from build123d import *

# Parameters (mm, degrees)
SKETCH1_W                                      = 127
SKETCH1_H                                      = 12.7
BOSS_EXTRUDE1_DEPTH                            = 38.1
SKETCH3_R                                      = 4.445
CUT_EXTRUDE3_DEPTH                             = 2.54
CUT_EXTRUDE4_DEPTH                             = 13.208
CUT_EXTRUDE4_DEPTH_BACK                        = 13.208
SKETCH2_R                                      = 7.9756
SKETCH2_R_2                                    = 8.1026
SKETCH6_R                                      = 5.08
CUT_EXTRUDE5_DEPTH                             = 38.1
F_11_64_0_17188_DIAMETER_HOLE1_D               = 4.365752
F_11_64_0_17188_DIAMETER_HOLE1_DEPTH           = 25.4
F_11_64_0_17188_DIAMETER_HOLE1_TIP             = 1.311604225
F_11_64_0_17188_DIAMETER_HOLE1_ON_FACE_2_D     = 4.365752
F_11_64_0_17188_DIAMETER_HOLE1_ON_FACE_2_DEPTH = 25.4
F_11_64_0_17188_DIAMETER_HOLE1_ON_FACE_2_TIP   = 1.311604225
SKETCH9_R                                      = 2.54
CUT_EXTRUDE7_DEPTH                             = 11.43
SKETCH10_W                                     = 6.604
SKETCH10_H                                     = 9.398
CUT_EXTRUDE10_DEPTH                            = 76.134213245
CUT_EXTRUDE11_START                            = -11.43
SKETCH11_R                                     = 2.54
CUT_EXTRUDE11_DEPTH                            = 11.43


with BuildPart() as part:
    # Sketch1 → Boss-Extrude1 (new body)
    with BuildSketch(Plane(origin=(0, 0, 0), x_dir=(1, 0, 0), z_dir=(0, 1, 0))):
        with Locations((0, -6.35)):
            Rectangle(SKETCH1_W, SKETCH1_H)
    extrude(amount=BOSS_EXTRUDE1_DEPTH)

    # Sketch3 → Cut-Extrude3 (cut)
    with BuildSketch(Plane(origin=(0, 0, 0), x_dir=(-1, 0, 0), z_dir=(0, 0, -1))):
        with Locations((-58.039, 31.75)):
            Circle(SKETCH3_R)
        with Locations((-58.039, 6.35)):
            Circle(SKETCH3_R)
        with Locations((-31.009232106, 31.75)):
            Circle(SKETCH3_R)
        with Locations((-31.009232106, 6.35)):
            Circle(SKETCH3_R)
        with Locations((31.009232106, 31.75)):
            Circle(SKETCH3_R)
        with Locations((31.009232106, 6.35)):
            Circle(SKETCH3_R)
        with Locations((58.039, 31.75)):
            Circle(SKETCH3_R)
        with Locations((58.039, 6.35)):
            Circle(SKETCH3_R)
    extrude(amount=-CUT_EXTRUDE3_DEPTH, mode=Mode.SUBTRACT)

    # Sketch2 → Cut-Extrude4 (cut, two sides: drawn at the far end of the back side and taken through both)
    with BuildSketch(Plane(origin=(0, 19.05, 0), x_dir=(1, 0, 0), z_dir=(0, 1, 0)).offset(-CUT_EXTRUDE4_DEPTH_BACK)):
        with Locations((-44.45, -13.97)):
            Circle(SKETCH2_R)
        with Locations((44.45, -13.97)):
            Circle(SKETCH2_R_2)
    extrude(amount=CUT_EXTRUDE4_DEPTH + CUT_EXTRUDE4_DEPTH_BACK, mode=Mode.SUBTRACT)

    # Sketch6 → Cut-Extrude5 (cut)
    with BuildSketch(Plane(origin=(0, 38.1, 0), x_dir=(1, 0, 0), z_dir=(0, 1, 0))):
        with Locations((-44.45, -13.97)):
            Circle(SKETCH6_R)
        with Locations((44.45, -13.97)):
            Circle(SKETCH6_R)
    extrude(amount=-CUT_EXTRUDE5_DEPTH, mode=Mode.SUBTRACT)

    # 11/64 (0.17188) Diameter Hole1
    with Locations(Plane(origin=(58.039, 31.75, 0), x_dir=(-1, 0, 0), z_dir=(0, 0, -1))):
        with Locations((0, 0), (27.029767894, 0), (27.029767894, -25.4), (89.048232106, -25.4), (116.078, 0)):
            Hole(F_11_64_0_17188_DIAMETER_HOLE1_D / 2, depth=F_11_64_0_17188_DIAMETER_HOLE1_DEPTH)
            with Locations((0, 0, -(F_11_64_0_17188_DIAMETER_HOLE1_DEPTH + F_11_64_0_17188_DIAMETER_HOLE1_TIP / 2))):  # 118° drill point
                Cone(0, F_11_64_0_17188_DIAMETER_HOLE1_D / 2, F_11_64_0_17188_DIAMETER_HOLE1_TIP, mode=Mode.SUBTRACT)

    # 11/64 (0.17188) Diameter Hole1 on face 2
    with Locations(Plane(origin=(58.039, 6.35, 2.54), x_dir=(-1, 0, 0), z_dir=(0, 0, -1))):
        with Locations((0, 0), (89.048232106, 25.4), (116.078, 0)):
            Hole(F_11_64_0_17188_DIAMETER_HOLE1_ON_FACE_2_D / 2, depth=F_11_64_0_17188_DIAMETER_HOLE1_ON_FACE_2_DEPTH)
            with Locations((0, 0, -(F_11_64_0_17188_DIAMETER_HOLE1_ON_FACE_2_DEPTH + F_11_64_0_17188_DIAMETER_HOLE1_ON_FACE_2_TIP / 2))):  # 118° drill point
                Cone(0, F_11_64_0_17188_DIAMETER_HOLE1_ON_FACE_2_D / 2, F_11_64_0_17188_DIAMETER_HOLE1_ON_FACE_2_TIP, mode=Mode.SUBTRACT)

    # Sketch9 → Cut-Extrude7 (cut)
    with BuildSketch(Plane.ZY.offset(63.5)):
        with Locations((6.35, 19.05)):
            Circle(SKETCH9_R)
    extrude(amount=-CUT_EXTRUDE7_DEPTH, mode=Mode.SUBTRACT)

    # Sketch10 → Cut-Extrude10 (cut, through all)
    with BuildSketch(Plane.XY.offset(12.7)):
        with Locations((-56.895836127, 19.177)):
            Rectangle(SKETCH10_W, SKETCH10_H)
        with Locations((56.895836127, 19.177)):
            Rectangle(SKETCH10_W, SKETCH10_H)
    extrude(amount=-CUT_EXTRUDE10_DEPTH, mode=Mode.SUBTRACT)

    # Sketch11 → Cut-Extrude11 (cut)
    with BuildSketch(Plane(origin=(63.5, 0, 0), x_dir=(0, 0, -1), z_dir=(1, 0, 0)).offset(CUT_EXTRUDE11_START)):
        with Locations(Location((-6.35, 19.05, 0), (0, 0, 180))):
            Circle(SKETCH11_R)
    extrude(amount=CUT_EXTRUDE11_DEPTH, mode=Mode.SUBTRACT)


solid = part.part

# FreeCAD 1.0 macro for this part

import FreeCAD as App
import Part
import Sketcher

V = App.Vector
Q = App.Units.Quantity


def add_polygon(sketch, points):
    """Adds a closed chain of lines whose ends are joined by coincident constraints."""
    first, n = sketch.GeometryCount, len(points)
    for a, b in zip(points, points[1:] + points[:1]):
        sketch.addGeometry(Part.LineSegment(App.Vector(*a, 0), App.Vector(*b, 0)), False)
    for i in range(n):
        sketch.addConstraint(Sketcher.Constraint("Coincident", first + i, 2, first + (i + 1) % n, 1))

doc = App.newDocument("Part")
body = doc.addObject("PartDesign::Body", "Body")

sketch1 = body.newObject("Sketcher::SketchObject", "Sketch")
sketch1.AttachmentSupport = (doc.getObject("XZ_Plane"), [""])
sketch1.MapMode = "FlatFace"
add_polygon(sketch1, [(-64, 0), (-64, 13), (64, 13), (64, 0)])
sketch1.addConstraint([
    Sketcher.Constraint("Vertical", 0),
    Sketcher.Constraint("Horizontal", 1),
    Sketcher.Constraint("Vertical", 2),
    Sketcher.Constraint("Horizontal", 3),
    Sketcher.Constraint("Symmetric", 2, 2, 3, 2, -1, 1),
    Sketcher.Constraint("DistanceX", 1, 1, 1, 2, Q("5 in")),
    Sketcher.Constraint("DistanceY", 0, 1, 0, 2, Q("0.5 in")),
])
pad1 = body.newObject("PartDesign::Pad", "Pad")
pad1.Profile = sketch1
pad1.Length = Q("1.5 in")
pad1.Reversed = True

sketch2 = body.newObject("Sketcher::SketchObject", "Sketch001")
sketch2.AttachmentSupport = (doc.getObject("XY_Plane"), [""])
sketch2.MapMode = "FlatFace"
sketch2.addGeometry([
    Part.Circle(V(58, 31.8, 0), V(0, 0, 1), 4.4),
    Part.Circle(V(58, 6.3, 0), V(0, 0, 1), 4.4),
    Part.Circle(V(31, 31.8, 0), V(0, 0, 1), 4.4),
    Part.Circle(V(31, 6.3, 0), V(0, 0, 1), 4.4),
    Part.Circle(V(-31, 31.8, 0), V(0, 0, 1), 4.4),
    Part.Circle(V(-31, 6.3, 0), V(0, 0, 1), 4.4),
    Part.Circle(V(-58, 31.8, 0), V(0, 0, 1), 4.4),
    Part.Circle(V(-58, 6.3, 0), V(0, 0, 1), 4.4),
], False)
sketch2.addConstraint([
    Sketcher.Constraint("Equal", 0, 1),
    Sketcher.Constraint("Equal", 1, 2),
    Sketcher.Constraint("Equal", 2, 3),
    Sketcher.Constraint("Equal", 3, 4),
    Sketcher.Constraint("Equal", 4, 5),
    Sketcher.Constraint("Equal", 5, 6),
    Sketcher.Constraint("Equal", 6, 7),
    Sketcher.Constraint("Symmetric", 2, 3, 4, 3, -2),
    Sketcher.Constraint("Symmetric", 3, 3, 5, 3, -2),
    Sketcher.Constraint("Symmetric", 0, 3, 6, 3, -2),
    Sketcher.Constraint("Symmetric", 1, 3, 7, 3, -2),
    Sketcher.Constraint("Horizontal", 0, 3, 2, 3),
    Sketcher.Constraint("Horizontal", 1, 3, 3, 3),
    Sketcher.Constraint("Vertical", 0, 3, 1, 3),
    Sketcher.Constraint("Vertical", 2, 3, 3, 3),
    Sketcher.Constraint("Diameter", 0, Q("0.35 in")),
    Sketcher.Constraint("DistanceY", 1, 3, 0, 3, Q("1 in")),
    Sketcher.Constraint("DistanceY", -1, 1, 0, 3, Q("1.25 in")),
    Sketcher.Constraint("DistanceX", 6, 3, 0, 3, Q("4.57 in")),
    Sketcher.Constraint("DistanceX", -1, 1, 2, 3, 31.009232),
])
pocket1 = body.newObject("PartDesign::Pocket", "Pocket")
pocket1.Profile = sketch2
pocket1.Length = Q("0.1 in")
pocket1.Reversed = True

sketch3 = body.newObject("Sketcher::SketchObject", "Sketch002")
sketch3.AttachmentSupport = (doc.getObject("XZ_Plane"), [""])
sketch3.MapMode = "FlatFace"
sketch3.AttachmentOffset = App.Placement(V(0, 0, -0.75 * 25.4), App.Rotation())
sketch3.addGeometry([
    Part.Circle(V(-44, 14, 0), V(0, 0, 1), 8),
    Part.Circle(V(44, 14, 0), V(0, 0, 1), 8),
], False)
sketch3.addConstraint([
    Sketcher.Constraint("Symmetric", 0, 3, 1, 3, -2),
    Sketcher.Constraint("Diameter", 0, Q("0.628 in")),
    Sketcher.Constraint("Diameter", 1, Q("0.638 in")),
    Sketcher.Constraint("DistanceX", 0, 3, 1, 3, Q("3.5 in")),
    Sketcher.Constraint("DistanceY", -1, 1, 0, 3, Q("0.55 in")),
])
pocket2 = body.newObject("PartDesign::Pocket", "Pocket001")
pocket2.Profile = sketch3
pocket2.Type = "TwoLengths"
pocket2.Length = Q("0.52 in")
pocket2.Length2 = Q("0.52 in")

sketch4 = body.newObject("Sketcher::SketchObject", "Sketch003")
sketch4.AttachmentSupport = (doc.getObject("XZ_Plane"), [""])
sketch4.MapMode = "FlatFace"
sketch4.AttachmentOffset = App.Placement(V(0, 0, -1.5 * 25.4), App.Rotation())
sketch4.addGeometry([
    Part.Circle(V(-44, 14, 0), V(0, 0, 1), 5),
    Part.Circle(V(44, 14, 0), V(0, 0, 1), 5),
], False)
sketch4.addConstraint([
    Sketcher.Constraint("Equal", 0, 1),
    Sketcher.Constraint("Symmetric", 0, 3, 1, 3, -2),
    Sketcher.Constraint("Diameter", 0, Q("0.4 in")),
    Sketcher.Constraint("DistanceX", 0, 3, 1, 3, Q("3.5 in")),
    Sketcher.Constraint("DistanceY", -1, 1, 0, 3, Q("0.55 in")),
])
pocket3 = body.newObject("PartDesign::Pocket", "Pocket002")
pocket3.Profile = sketch4
pocket3.Length = Q("1.5 in")
pocket3.Reversed = True

sketch5 = body.newObject("Sketcher::SketchObject", "Sketch004")
sketch5.AttachmentSupport = (doc.getObject("XY_Plane"), [""])
sketch5.MapMode = "FlatFace"
sketch5.addGeometry([
    Part.Circle(V(58, 31.8, 0), V(0, 0, 1), 2.2),
    Part.Circle(V(31, 31.8, 0), V(0, 0, 1), 2.2),
    Part.Circle(V(31, 6.3, 0), V(0, 0, 1), 2.2),
    Part.Circle(V(-31, 6.3, 0), V(0, 0, 1), 2.2),
    Part.Circle(V(-58, 31.8, 0), V(0, 0, 1), 2.2),
], False)
sketch5.addConstraint([
    Sketcher.Constraint("Equal", 0, 1),
    Sketcher.Constraint("Equal", 1, 2),
    Sketcher.Constraint("Equal", 2, 3),
    Sketcher.Constraint("Equal", 3, 4),
    Sketcher.Constraint("Symmetric", 2, 3, 3, 3, -2),
    Sketcher.Constraint("Symmetric", 0, 3, 4, 3, -2),
    Sketcher.Constraint("Horizontal", 0, 3, 1, 3),
    Sketcher.Constraint("Vertical", 1, 3, 2, 3),
    Sketcher.Constraint("DistanceY", 2, 3, 1, 3, Q("1 in")),
    Sketcher.Constraint("DistanceY", -1, 1, 0, 3, Q("1.25 in")),
    Sketcher.Constraint("DistanceX", 4, 3, 0, 3, Q("4.57 in")),
    Sketcher.Constraint("Diameter", 0, 4.365752),
    Sketcher.Constraint("DistanceX", -1, 1, 1, 3, 31.009232),
])
doc.recompute()
hole = body.newObject("PartDesign::Hole", "Hole")
hole.Profile = sketch5
hole.ThreadType = "None"
hole.Diameter = 4.365752
hole.DepthType = "Dimension"
hole.Depth = Q("1 in")
hole.DrillPoint = "Angled"
hole.DrillPointAngle = 118
hole.Reversed = True

sketch6 = body.newObject("Sketcher::SketchObject", "Sketch005")
sketch6.AttachmentSupport = (doc.getObject("XY_Plane"), [""])
sketch6.MapMode = "FlatFace"
sketch6.AttachmentOffset = App.Placement(V(0, 0, 0.1 * 25.4), App.Rotation())
sketch6.addGeometry([
    Part.Circle(V(58, 6.3, 0), V(0, 0, 1), 2.2),
    Part.Circle(V(-31, 31.8, 0), V(0, 0, 1), 2.2),
    Part.Circle(V(-58, 6.3, 0), V(0, 0, 1), 2.2),
], False)
sketch6.addConstraint([
    Sketcher.Constraint("Equal", 0, 1),
    Sketcher.Constraint("Equal", 1, 2),
    Sketcher.Constraint("Symmetric", 0, 3, 2, 3, -2),
    Sketcher.Constraint("DistanceY", 0, 3, 1, 3, Q("1 in")),
    Sketcher.Constraint("DistanceY", -1, 1, 0, 3, Q("0.25 in")),
    Sketcher.Constraint("DistanceX", 2, 3, 0, 3, Q("4.57 in")),
    Sketcher.Constraint("Diameter", 0, 4.365752),
    Sketcher.Constraint("DistanceX", 1, 3, -1, 1, 31.009232),
])
doc.recompute()
hole2 = body.newObject("PartDesign::Hole", "Hole001")
hole2.Profile = sketch6
hole2.ThreadType = "None"
hole2.Diameter = 4.365752
hole2.DepthType = "Dimension"
hole2.Depth = Q("1 in")
hole2.DrillPoint = "Angled"
hole2.DrillPointAngle = 118
hole2.Reversed = True

sketch7 = body.newObject("Sketcher::SketchObject", "Sketch006")
sketch7.AttachmentSupport = (doc.getObject("YZ_Plane"), [""])
sketch7.MapMode = "FlatFace"
sketch7.AttachmentOffset = App.Placement(V(0, 0, -2.5 * 25.4), App.Rotation())
sketch7.addGeometry(Part.Circle(V(19.1, 6.3, 0), V(0, 0, 1), 2.5), False)
sketch7.addConstraint([
    Sketcher.Constraint("Diameter", 0, Q("0.2 in")),
    Sketcher.Constraint("DistanceX", -1, 1, 0, 3, Q("0.75 in")),
    Sketcher.Constraint("DistanceY", -1, 1, 0, 3, Q("0.25 in")),
])
pocket4 = body.newObject("PartDesign::Pocket", "Pocket003")
pocket4.Profile = sketch7
pocket4.Length = Q("0.45 in")
pocket4.Reversed = True

sketch8 = body.newObject("Sketcher::SketchObject", "Sketch007")
sketch8.AttachmentSupport = (doc.getObject("XY_Plane"), [""])
sketch8.MapMode = "FlatFace"
sketch8.AttachmentOffset = App.Placement(V(0, 0, 0.5 * 25.4), App.Rotation())
add_polygon(sketch8, [(-60, 24), (-60, 14), (-54, 14), (-54, 24)])
add_polygon(sketch8, [(54, 24), (54, 14), (60, 14), (60, 24)])
sketch8.addConstraint([
    Sketcher.Constraint("Vertical", 0),
    Sketcher.Constraint("Horizontal", 1),
    Sketcher.Constraint("Vertical", 2),
    Sketcher.Constraint("Horizontal", 3),
    Sketcher.Constraint("Vertical", 4),
    Sketcher.Constraint("Horizontal", 5),
    Sketcher.Constraint("Vertical", 6),
    Sketcher.Constraint("Horizontal", 7),
    Sketcher.Constraint("Symmetric", 1, 2, 4, 2, -2),
    Sketcher.Constraint("Symmetric", 3, 2, 6, 2, -2),
    Sketcher.Constraint("DistanceX", 1, 1, 1, 2, Q("0.26 in")),
    Sketcher.Constraint("DistanceY", 0, 2, 0, 1, Q("0.37 in")),
    Sketcher.Constraint("DistanceY", -1, 1, 0, 2, Q("0.57 in")),
    Sketcher.Constraint("DistanceX", 0, 2, -1, 1, 60.197836),
])
pocket5 = body.newObject("PartDesign::Pocket", "Pocket004")
pocket5.Profile = sketch8
pocket5.Type = "ThroughAll"

sketch9 = body.newObject("Sketcher::SketchObject", "Sketch008")
sketch9.AttachmentSupport = (doc.getObject("YZ_Plane"), [""])
sketch9.MapMode = "FlatFace"
sketch9.AttachmentOffset = App.Placement(V(0, 0, 2.05 * 25.4), App.Rotation())
sketch9.addGeometry(Part.Circle(V(19.1, 6.3, 0), V(0, 0, 1), 2.5), False)
sketch9.addConstraint([
    Sketcher.Constraint("Diameter", 0, Q("0.2 in")),
    Sketcher.Constraint("DistanceX", -1, 1, 0, 3, Q("0.75 in")),
    Sketcher.Constraint("DistanceY", -1, 1, 0, 3, Q("0.25 in")),
])
pocket6 = body.newObject("PartDesign::Pocket", "Pocket005")
pocket6.Profile = sketch9
pocket6.Length = Q("0.45 in")
pocket6.Reversed = True

doc.recompute()
